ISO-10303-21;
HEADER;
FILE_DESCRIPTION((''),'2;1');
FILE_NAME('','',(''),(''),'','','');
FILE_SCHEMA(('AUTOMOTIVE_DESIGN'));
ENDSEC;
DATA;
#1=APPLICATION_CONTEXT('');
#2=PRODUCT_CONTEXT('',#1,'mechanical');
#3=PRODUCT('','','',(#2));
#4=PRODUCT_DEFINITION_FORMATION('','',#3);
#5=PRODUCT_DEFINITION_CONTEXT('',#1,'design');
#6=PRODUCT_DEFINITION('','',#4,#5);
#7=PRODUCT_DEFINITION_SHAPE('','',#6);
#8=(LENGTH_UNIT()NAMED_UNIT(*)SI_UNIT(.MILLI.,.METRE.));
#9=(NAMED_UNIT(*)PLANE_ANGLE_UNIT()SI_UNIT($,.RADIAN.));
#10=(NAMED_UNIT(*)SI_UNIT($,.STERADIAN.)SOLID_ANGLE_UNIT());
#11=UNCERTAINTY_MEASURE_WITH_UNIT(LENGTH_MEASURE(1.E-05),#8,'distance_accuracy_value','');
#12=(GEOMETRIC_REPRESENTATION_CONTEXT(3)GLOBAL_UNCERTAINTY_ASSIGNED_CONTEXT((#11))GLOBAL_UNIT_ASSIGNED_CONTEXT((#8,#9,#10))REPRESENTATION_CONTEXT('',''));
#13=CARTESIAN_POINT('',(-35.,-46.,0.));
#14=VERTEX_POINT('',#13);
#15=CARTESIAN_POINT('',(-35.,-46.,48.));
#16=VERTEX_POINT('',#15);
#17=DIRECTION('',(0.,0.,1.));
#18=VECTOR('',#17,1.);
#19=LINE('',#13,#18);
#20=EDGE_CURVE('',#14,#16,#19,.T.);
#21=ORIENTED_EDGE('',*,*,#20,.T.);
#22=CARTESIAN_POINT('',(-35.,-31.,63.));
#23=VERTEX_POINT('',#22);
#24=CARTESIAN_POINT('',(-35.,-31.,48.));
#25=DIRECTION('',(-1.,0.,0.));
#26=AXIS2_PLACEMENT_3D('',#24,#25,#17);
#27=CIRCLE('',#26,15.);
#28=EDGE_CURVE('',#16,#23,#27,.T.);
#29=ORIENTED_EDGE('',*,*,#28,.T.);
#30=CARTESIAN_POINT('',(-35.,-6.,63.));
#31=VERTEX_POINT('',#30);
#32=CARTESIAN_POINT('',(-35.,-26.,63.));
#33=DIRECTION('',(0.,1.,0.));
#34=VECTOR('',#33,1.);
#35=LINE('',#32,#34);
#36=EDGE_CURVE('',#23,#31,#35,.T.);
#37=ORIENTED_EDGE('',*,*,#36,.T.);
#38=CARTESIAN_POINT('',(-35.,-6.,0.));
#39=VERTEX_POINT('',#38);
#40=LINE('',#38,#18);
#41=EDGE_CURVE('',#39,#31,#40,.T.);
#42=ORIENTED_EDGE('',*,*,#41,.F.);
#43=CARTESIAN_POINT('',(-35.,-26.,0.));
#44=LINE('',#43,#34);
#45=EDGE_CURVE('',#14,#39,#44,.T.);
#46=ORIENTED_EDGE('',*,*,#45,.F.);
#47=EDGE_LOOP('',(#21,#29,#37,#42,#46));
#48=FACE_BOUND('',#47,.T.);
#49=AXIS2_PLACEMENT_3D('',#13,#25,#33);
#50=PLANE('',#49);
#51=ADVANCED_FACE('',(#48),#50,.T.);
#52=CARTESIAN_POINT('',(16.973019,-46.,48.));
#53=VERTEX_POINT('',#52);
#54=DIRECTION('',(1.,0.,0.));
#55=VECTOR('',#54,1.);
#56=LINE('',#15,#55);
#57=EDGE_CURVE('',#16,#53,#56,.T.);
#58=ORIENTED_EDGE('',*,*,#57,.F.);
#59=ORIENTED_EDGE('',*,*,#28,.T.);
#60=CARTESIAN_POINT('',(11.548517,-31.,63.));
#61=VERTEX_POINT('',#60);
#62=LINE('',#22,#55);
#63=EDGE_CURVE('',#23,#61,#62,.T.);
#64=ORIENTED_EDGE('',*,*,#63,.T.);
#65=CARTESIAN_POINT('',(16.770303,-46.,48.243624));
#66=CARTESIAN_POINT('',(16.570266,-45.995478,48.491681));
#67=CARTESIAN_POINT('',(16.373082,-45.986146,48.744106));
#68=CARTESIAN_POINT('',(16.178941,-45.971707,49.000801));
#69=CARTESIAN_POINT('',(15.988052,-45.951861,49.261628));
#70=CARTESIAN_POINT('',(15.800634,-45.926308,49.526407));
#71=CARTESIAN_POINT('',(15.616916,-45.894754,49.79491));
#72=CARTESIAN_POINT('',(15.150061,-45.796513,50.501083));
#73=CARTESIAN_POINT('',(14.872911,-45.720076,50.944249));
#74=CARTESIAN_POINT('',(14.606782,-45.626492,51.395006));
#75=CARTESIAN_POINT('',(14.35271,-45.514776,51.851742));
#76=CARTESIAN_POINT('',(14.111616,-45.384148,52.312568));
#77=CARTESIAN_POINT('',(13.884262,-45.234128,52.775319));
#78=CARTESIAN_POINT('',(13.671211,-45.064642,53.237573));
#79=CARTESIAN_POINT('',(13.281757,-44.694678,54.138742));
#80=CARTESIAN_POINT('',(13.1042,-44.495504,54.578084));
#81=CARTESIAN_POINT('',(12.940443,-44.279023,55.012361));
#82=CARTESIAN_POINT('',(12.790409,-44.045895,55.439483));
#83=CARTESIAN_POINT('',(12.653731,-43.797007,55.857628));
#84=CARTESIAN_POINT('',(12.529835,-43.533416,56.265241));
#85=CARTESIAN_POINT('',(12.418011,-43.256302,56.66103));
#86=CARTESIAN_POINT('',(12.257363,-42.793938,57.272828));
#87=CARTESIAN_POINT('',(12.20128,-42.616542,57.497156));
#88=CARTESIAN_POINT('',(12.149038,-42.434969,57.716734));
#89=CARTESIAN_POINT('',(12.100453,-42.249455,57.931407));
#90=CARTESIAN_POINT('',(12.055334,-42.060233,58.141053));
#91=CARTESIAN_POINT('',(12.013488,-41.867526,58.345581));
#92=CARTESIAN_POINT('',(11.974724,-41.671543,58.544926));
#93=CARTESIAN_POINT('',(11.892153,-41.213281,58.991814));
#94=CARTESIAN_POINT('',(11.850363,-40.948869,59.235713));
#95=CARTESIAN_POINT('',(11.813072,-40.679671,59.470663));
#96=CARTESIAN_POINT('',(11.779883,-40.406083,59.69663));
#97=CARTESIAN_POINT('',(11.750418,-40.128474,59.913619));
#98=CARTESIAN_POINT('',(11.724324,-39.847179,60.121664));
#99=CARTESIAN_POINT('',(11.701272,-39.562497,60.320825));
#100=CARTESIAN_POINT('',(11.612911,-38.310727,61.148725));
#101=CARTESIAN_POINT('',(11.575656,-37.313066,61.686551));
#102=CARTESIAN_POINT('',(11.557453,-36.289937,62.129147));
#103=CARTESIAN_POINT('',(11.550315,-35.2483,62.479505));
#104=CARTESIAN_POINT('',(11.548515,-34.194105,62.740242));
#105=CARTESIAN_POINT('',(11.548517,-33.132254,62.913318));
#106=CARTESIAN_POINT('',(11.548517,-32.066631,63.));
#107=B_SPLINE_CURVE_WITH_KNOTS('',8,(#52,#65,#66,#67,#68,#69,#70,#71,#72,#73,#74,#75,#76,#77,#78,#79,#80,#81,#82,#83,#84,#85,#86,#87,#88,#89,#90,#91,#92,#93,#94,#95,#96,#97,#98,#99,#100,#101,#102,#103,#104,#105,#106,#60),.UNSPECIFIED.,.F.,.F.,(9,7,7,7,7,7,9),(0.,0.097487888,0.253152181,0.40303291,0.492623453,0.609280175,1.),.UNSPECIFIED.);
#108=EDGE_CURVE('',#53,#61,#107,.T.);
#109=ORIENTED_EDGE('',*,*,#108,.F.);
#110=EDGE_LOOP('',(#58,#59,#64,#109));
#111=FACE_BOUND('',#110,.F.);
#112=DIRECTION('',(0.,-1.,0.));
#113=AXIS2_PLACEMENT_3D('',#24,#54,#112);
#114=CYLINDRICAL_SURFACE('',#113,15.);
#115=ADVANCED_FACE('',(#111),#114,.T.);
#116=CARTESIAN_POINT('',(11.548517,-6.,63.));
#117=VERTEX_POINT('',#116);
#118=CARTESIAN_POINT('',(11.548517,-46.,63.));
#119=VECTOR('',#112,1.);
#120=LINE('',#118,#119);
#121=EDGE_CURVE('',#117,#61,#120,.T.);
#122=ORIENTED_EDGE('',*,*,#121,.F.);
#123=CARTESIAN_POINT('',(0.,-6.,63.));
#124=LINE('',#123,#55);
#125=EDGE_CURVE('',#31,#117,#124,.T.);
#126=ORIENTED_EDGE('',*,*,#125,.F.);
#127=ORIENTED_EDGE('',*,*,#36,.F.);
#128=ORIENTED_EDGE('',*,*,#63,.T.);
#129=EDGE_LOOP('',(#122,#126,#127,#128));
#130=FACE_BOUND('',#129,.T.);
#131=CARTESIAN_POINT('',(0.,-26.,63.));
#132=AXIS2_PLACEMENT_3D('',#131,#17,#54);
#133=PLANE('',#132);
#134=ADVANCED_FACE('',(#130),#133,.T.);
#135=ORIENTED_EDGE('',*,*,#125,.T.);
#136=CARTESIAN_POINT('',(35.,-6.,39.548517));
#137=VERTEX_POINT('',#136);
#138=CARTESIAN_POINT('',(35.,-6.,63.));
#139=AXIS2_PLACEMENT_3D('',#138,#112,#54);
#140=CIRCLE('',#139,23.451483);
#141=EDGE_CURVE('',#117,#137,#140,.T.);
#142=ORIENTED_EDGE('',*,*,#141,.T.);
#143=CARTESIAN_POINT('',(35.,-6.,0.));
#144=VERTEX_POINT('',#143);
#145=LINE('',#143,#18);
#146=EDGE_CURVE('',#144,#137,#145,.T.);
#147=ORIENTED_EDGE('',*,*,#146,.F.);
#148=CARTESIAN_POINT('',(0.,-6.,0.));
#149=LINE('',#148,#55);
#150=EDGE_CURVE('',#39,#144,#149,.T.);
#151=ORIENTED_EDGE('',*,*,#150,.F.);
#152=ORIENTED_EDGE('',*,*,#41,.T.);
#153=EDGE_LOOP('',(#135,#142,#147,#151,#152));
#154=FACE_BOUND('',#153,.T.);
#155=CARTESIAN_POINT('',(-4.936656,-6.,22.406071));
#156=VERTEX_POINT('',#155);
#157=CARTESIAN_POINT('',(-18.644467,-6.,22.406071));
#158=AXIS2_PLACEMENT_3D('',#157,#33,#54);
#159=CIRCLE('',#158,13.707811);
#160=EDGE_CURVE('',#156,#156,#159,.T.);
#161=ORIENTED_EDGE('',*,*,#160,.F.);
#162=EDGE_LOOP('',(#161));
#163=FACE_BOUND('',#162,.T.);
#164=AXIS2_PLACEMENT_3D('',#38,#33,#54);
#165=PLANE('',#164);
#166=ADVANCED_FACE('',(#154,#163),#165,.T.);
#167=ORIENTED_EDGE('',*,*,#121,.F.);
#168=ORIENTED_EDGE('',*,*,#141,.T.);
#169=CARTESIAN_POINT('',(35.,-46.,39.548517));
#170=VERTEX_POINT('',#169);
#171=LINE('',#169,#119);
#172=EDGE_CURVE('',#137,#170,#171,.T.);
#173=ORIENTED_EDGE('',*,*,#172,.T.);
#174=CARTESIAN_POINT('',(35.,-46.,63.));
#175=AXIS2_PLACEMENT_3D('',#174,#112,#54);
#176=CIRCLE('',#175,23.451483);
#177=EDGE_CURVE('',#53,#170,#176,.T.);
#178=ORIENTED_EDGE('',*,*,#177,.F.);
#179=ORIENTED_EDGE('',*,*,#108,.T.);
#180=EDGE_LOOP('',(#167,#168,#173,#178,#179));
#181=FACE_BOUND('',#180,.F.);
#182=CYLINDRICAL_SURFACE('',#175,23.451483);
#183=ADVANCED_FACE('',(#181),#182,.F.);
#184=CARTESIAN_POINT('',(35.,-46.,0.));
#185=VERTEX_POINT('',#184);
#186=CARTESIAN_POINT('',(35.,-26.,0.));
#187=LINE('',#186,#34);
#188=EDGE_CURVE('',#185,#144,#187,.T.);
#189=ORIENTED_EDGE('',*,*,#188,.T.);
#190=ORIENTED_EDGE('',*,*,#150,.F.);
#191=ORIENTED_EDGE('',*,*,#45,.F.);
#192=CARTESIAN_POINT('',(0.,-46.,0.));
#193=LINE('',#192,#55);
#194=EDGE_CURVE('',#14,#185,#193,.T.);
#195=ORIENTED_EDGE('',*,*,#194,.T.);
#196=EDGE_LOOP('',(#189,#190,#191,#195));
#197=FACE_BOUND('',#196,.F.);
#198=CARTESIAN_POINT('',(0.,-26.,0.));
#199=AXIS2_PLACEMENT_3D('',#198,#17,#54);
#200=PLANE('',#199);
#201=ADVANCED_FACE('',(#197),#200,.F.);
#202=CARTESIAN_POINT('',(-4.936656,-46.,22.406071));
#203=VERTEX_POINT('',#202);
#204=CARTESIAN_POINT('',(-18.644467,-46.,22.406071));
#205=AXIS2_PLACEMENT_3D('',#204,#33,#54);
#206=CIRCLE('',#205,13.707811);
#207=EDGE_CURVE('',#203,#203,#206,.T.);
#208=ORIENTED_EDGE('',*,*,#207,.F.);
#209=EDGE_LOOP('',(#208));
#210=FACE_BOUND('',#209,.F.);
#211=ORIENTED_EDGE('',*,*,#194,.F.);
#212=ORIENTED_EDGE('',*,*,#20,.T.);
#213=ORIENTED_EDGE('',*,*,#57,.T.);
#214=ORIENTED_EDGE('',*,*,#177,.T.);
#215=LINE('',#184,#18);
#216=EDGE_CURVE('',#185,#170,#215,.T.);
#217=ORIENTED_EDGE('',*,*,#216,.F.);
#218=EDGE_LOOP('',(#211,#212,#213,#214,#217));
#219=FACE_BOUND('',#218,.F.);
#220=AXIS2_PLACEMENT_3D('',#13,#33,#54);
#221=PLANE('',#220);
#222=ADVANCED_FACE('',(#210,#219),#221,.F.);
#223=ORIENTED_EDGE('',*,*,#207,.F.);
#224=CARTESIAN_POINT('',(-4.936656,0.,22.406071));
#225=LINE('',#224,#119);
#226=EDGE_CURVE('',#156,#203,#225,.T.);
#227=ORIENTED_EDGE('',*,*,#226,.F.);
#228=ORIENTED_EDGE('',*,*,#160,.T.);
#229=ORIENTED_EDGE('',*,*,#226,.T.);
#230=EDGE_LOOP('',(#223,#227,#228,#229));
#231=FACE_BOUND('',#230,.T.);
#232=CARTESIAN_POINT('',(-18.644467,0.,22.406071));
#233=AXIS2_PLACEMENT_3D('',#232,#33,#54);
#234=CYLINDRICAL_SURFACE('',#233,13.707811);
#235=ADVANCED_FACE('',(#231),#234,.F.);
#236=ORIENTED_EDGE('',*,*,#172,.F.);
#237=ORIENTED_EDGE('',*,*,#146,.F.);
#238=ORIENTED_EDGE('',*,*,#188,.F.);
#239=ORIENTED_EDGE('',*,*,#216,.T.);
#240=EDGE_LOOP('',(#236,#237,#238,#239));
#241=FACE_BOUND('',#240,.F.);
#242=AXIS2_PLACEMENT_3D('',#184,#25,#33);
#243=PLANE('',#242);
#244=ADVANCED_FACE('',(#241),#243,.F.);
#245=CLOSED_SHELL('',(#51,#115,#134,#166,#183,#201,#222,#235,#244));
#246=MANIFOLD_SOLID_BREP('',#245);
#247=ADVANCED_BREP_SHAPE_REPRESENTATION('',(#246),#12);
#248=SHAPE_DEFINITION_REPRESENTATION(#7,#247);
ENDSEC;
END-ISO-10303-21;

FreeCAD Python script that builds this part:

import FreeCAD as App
import Part
import Sketcher
from FreeCAD import Vector


def edges_at(feature, points):
    """Names of the edges that pass closest to the given points."""
    edges = feature.Shape.Edges
    near = lambda p: min(range(len(edges)), key=lambda i: edges[i].distToShape(Part.Vertex(*p))[0])
    return sorted({f"Edge{near(p) + 1}" for p in points})

doc = App.newDocument("Part")
params = doc.addObject("Spreadsheet::Sheet", "Params")
for row, (alias, value) in enumerate([
    ("sketch1_width", "70 mm"),
    ("sketch1_height", "40 mm"),
    ("pad1_length", "63 mm"),
    ("pocket1_length", "74 mm"),
    ("pocket2_length", "87.035492 mm"),
    ("fillet_radius", "15 mm"),
], start=1):
    params.set(f"A{row}", alias)
    params.set(f"B{row}", "=" + value)
    params.setAlias(f"B{row}", alias)

body = doc.addObject("PartDesign::Body", "Body")

sketch1 = body.newObject("Sketcher::SketchObject", "Sketch")
sketch1.AttachmentSupport = (doc.getObject("XY_Plane"), [""])
sketch1.MapMode = "FlatFace"
sketch1.addGeometry([
    Part.LineSegment(Vector(-35, -6, 0), Vector(-35, -46, 0)),
    Part.LineSegment(Vector(-35, -46, 0), Vector(35, -46, 0)),
    Part.LineSegment(Vector(35, -46, 0), Vector(35, -6, 0)),
    Part.LineSegment(Vector(35, -6, 0), Vector(-35, -6, 0)),
], False)
sketch1.addConstraint([
    Sketcher.Constraint("Coincident", 0, 2, 1, 1),
    Sketcher.Constraint("Coincident", 1, 2, 2, 1),
    Sketcher.Constraint("Coincident", 2, 2, 3, 1),
    Sketcher.Constraint("Coincident", 3, 2, 0, 1),
    Sketcher.Constraint("Vertical", 0),
    Sketcher.Constraint("Horizontal", 1),
    Sketcher.Constraint("Vertical", 2),
    Sketcher.Constraint("Horizontal", 3),
    Sketcher.Constraint("DistanceX", 1, 1, 1, 2, 70.0),
    Sketcher.Constraint("DistanceY", 0, 2, 0, 1, 40.0),
    Sketcher.Constraint("DistanceX", 0, 2, -1, 1, 35.0),
    Sketcher.Constraint("DistanceY", 0, 2, -1, 1, 46.0),
])
sketch1.setExpression("Constraints[8]", "Params.sketch1_width")
sketch1.setExpression("Constraints[9]", "Params.sketch1_height")
pad1 = body.newObject("PartDesign::Pad", "Pad")
pad1.Profile = sketch1
pad1.setExpression("Length", "Params.pad1_length")

sketch2 = body.newObject("Sketcher::SketchObject", "Sketch001")
sketch2.AttachmentSupport = (doc.getObject("XZ_Plane"), [""])
sketch2.MapMode = "FlatFace"
sketch2.AttachmentOffset = App.Placement(Vector(0, 0, 46), App.Rotation())
sketch2.addGeometry(Part.Circle(Vector(35, 63, 0), Vector(0, 0, 1), 23), False)
sketch2.addConstraint([
    Sketcher.Constraint("DistanceX", -1, 1, 0, 3, 35.0),
    Sketcher.Constraint("DistanceY", -1, 1, 0, 3, 63.0),
    Sketcher.Constraint("Diameter", 0, 46.902966),
])
pocket1 = body.newObject("PartDesign::Pocket", "Pocket")
pocket1.Profile = sketch2
pocket1.setExpression("Length", "Params.pocket1_length")

sketch3 = body.newObject("Sketcher::SketchObject", "Sketch002")
sketch3.AttachmentSupport = (doc.getObject("XZ_Plane"), [""])
sketch3.MapMode = "FlatFace"
sketch3.addGeometry(Part.Circle(Vector(-19, 22, 0), Vector(0, 0, 1), 14), False)
sketch3.addConstraint([
    Sketcher.Constraint("Diameter", 0, 27.415622),
    Sketcher.Constraint("DistanceY", -1, 1, 0, 3, 22.406071),
    Sketcher.Constraint("DistanceX", 0, 3, -1, 1, 18.644467),
])
pocket2 = body.newObject("PartDesign::Pocket", "Pocket001")
pocket2.Profile = sketch3
pocket2.setExpression("Length", "Params.pocket2_length")
pocket2.Reversed = True
doc.recompute()

fillet = body.newObject("PartDesign::Fillet", "Fillet")
fillet.Base = (pocket2, edges_at(pocket2, [(-11.726, -46, 63)]))
fillet.setExpression("Radius", "Params.fillet_radius")

doc.recompute()
